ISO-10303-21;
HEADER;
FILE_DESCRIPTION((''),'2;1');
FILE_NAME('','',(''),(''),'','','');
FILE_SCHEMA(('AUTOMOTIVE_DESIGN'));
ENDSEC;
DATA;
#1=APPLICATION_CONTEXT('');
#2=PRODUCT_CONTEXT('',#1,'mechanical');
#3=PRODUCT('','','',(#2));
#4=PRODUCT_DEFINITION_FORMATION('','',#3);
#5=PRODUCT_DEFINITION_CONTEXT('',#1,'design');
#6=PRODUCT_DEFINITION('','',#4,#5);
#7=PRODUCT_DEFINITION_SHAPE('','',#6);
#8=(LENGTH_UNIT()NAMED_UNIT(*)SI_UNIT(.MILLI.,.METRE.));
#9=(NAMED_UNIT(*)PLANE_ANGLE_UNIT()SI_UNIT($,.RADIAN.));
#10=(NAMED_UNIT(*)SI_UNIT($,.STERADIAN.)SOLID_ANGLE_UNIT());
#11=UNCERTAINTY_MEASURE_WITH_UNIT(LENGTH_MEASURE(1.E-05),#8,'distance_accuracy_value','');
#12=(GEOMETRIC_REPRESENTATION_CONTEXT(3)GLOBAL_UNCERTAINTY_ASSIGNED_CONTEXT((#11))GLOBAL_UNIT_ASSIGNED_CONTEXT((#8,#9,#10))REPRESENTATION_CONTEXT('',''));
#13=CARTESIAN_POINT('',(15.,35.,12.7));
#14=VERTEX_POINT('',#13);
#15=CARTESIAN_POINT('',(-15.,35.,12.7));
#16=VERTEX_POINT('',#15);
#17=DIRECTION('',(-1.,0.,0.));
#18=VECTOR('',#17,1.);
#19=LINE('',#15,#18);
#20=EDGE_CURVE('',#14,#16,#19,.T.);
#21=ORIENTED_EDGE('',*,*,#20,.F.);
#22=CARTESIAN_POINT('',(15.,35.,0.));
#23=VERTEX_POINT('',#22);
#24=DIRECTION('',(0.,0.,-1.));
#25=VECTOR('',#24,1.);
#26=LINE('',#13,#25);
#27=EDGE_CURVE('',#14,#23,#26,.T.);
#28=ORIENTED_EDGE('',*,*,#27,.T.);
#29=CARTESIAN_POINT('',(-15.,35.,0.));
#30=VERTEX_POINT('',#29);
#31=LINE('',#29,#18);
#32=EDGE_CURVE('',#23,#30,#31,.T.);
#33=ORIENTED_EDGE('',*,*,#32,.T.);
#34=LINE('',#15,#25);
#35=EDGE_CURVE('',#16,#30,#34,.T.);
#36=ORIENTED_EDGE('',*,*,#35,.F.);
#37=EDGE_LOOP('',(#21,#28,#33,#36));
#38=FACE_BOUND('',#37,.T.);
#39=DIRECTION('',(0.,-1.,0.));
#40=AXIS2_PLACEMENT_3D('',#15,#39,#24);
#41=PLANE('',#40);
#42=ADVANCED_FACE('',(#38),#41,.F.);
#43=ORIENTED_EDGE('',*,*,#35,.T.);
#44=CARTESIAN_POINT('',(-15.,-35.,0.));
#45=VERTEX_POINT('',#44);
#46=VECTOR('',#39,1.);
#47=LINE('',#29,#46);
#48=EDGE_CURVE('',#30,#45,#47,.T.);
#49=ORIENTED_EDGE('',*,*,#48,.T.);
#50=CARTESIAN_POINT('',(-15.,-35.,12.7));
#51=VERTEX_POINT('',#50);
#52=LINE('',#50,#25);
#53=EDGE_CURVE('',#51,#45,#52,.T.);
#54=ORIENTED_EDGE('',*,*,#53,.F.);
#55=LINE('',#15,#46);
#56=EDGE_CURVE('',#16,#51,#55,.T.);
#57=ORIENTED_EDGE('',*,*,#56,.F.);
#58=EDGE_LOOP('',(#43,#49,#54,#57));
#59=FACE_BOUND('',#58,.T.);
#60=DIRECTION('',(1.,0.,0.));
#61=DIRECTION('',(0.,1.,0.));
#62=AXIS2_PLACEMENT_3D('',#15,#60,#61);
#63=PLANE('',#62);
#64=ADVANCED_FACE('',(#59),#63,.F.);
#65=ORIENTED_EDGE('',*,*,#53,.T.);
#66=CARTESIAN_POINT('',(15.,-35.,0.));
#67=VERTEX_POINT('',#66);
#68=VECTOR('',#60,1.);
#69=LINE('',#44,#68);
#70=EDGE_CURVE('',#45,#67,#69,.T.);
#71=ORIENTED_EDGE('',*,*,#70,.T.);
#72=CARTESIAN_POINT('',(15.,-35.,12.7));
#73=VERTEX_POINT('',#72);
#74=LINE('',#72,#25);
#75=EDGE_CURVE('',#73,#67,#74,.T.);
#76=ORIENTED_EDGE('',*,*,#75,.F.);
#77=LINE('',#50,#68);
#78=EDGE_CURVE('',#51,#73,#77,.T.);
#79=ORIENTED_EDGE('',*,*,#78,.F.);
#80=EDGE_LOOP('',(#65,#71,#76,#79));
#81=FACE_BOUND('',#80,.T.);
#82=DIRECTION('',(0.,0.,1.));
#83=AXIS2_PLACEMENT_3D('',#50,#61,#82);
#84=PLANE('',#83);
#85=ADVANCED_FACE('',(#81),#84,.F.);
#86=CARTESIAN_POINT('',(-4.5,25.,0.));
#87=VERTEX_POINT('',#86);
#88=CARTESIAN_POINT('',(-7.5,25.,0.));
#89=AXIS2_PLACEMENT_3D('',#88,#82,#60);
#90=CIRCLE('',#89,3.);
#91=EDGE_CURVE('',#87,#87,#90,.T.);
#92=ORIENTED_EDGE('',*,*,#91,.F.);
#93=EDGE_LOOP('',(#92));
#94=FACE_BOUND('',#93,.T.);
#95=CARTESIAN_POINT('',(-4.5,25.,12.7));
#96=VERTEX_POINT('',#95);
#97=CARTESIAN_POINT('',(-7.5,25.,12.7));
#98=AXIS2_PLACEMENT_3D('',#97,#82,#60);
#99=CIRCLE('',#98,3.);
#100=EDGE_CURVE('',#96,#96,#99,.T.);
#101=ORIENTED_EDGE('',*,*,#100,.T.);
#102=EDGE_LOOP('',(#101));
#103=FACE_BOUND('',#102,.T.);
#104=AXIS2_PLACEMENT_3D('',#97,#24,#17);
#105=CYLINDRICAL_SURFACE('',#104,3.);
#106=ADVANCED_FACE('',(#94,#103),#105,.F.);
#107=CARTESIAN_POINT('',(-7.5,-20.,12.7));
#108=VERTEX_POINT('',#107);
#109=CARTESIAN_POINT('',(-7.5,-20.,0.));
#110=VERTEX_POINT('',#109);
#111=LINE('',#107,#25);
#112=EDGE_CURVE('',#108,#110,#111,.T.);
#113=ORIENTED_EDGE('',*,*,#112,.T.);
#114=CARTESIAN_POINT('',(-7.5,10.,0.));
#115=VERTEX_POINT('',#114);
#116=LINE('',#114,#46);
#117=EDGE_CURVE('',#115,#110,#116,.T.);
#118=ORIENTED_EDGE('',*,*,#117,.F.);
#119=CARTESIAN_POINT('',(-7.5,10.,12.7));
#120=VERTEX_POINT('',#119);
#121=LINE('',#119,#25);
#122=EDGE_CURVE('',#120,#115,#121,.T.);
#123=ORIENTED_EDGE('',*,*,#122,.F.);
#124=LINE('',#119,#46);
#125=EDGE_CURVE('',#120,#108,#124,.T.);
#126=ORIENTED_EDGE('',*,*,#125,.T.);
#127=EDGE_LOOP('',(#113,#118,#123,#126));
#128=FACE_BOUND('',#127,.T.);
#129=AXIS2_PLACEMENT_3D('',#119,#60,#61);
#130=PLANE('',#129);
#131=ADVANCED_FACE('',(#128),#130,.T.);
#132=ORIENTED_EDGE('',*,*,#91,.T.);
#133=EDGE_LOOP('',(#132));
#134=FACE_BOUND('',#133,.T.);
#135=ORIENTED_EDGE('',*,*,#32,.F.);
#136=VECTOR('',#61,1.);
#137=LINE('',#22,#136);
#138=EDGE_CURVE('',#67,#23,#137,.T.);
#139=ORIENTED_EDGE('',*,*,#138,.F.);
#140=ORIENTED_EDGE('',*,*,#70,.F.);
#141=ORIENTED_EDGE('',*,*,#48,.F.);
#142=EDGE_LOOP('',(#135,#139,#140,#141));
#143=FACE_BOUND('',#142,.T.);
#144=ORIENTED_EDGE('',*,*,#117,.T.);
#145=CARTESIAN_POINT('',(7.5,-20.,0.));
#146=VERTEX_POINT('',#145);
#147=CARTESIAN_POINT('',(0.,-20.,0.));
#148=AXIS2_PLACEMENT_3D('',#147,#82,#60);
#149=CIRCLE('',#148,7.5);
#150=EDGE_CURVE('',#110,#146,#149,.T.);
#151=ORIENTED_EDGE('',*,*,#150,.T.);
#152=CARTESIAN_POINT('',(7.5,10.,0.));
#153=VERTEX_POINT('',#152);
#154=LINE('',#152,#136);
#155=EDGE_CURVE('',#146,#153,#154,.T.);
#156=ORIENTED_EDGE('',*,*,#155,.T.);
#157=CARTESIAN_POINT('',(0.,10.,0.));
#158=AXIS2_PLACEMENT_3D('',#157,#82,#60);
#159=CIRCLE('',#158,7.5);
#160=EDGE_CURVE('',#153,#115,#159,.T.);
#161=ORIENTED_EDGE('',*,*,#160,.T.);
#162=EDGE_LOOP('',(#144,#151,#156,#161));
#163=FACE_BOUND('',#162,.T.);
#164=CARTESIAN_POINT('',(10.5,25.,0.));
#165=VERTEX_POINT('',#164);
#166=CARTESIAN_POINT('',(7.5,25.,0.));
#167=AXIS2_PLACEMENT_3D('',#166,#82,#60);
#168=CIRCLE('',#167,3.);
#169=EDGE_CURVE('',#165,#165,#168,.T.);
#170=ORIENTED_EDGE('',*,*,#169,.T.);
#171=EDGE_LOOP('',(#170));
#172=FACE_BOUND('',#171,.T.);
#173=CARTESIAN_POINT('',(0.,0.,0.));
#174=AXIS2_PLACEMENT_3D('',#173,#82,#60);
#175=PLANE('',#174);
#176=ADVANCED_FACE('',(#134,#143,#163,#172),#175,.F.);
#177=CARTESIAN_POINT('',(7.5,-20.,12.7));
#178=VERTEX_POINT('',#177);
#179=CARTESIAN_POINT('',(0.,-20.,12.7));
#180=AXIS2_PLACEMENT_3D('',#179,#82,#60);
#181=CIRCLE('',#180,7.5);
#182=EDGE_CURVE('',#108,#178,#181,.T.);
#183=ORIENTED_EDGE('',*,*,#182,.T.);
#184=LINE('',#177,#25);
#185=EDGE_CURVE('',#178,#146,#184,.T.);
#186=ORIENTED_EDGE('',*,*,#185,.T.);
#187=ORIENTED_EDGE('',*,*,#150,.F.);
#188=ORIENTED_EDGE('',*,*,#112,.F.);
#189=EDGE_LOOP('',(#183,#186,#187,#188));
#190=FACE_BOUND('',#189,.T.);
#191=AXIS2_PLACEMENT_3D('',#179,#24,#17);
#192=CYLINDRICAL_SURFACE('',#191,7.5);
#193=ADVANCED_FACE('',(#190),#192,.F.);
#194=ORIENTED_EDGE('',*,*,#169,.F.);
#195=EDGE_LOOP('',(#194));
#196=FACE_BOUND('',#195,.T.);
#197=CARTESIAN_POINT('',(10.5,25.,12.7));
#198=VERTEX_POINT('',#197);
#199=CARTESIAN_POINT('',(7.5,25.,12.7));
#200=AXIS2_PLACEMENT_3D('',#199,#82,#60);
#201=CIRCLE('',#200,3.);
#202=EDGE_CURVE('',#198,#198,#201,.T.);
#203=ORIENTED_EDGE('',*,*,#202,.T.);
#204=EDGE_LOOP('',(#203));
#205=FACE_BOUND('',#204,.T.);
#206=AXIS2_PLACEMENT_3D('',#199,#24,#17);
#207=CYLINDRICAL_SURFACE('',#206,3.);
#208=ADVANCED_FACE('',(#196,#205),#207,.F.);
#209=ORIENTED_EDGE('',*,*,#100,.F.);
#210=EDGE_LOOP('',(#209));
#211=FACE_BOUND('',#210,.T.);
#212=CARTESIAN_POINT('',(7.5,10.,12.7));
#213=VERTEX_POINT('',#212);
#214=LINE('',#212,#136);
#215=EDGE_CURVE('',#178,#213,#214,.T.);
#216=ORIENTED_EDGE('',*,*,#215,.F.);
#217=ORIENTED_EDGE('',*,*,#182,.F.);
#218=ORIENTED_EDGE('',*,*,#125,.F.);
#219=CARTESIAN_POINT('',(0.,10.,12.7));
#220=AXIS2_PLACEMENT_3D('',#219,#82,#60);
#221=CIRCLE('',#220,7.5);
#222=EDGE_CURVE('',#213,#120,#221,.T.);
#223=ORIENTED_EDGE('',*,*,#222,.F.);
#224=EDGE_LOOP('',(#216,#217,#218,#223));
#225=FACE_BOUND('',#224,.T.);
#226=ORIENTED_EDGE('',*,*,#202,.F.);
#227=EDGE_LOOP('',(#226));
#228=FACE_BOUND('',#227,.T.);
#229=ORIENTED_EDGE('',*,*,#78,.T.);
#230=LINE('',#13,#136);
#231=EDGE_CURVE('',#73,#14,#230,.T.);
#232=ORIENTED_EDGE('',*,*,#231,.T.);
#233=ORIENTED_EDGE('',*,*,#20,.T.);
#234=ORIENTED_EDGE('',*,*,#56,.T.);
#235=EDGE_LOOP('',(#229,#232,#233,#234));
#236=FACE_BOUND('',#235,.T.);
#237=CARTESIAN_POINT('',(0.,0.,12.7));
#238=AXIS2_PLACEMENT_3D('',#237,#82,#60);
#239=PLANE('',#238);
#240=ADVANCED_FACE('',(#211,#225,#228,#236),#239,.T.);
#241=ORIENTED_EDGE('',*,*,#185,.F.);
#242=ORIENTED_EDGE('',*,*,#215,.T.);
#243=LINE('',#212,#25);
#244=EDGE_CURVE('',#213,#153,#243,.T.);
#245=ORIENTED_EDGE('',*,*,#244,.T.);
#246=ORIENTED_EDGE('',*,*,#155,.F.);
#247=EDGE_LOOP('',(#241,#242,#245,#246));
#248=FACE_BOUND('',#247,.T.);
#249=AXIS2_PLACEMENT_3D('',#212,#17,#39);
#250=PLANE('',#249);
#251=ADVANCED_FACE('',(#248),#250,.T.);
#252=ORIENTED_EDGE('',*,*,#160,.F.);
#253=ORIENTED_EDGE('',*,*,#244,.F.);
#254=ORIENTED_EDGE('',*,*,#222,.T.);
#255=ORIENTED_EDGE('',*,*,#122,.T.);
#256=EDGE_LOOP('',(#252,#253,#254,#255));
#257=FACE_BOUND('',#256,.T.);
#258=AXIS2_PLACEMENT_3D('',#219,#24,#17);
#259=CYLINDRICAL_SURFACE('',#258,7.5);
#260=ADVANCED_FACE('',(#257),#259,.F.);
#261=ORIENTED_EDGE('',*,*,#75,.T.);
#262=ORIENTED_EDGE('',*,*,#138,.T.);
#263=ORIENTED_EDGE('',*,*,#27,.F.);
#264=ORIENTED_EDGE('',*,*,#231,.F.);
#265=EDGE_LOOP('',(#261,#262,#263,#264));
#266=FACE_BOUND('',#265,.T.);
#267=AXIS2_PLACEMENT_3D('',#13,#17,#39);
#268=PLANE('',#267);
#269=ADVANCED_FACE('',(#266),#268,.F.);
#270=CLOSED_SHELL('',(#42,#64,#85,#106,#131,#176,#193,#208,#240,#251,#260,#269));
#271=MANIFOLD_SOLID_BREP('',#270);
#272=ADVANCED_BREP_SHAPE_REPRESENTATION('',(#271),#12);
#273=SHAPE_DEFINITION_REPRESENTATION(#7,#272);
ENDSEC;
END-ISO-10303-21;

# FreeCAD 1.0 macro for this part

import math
import FreeCAD as App
import Part
import Sketcher
Q = App.Units.Quantity

doc = App.newDocument("Part")
params = doc.addObject("Spreadsheet::Sheet", "Params")
for row, (alias, value) in enumerate([
    ("sketch1_diameter", "6 mm"),
    ("sketch1_radius", "7.5 mm"),
    ("sketch1_width", "30 mm"),
    ("sketch1_height", "70 mm"),
    ("pad1_length", "12.7 mm"),
], start=1):
    params.set(f"A{row}", alias)
    params.set(f"B{row}", "=" + value)
    params.setAlias(f"B{row}", alias)

body = doc.addObject("PartDesign::Body", "Body")

sketch1 = body.newObject("Sketcher::SketchObject", "Sketch")
sketch1.AttachmentSupport = (doc.getObject("XY_Plane"), [""])
sketch1.MapMode = "FlatFace"
sketch1.addGeometry([
    Part.LineSegment(App.Vector(-15, 35, 0), App.Vector(-15, -35, 0)),
    Part.LineSegment(App.Vector(-15, -35, 0), App.Vector(15, -35, 0)),
    Part.LineSegment(App.Vector(15, -35, 0), App.Vector(15, 35, 0)),
    Part.LineSegment(App.Vector(15, 35, 0), App.Vector(-15, 35, 0)),
    Part.ArcOfCircle(Part.Circle(App.Vector(0, 10, 0), App.Vector(0, 0, 1), 7.5), math.radians(0), math.radians(180)),
    Part.LineSegment(App.Vector(7.5, 10, 0), App.Vector(7.5, -20, 0)),
    Part.ArcOfCircle(Part.Circle(App.Vector(0, -20, 0), App.Vector(0, 0, 1), 7.5), math.radians(180), math.radians(360)),
    Part.LineSegment(App.Vector(-7.5, -20, 0), App.Vector(-7.5, 10, 0)),
    Part.Circle(App.Vector(-7.5, 25, 0), App.Vector(0, 0, 1), 3),
    Part.Circle(App.Vector(7.5, 25, 0), App.Vector(0, 0, 1), 3),
], False)
sketch1.addConstraint([
    Sketcher.Constraint("Coincident", 0, 2, 1, 1),
    Sketcher.Constraint("Coincident", 1, 2, 2, 1),
    Sketcher.Constraint("Coincident", 2, 2, 3, 1),
    Sketcher.Constraint("Coincident", 3, 2, 0, 1),
    Sketcher.Constraint("Tangent", 4, 1, 5, 1),
    Sketcher.Constraint("Tangent", 5, 2, 6, 2),
    Sketcher.Constraint("Tangent", 6, 1, 7, 1),
    Sketcher.Constraint("Tangent", 7, 2, 4, 2),
    Sketcher.Constraint("Vertical", 0),
    Sketcher.Constraint("Horizontal", 1),
    Sketcher.Constraint("Vertical", 2),
    Sketcher.Constraint("Horizontal", 3),
    Sketcher.Constraint("Vertical", 5),
    Sketcher.Constraint("Vertical", 7),
    Sketcher.Constraint("Equal", 8, 9),
    Sketcher.Constraint("Symmetric", 0, 2, 2, 2, -1, 1),
    Sketcher.Constraint("Symmetric", 8, 3, 9, 3, -2),
    Sketcher.Constraint("PointOnObject", 4, 3, -2),
    Sketcher.Constraint("Vertical", 9, 3, 4, 1),
    Sketcher.Constraint("Equal", 3, 5),
    Sketcher.Constraint("Diameter", 8, Q("6 mm")),
    Sketcher.Constraint("Radius", 4, Q("7.5 mm")),
    Sketcher.Constraint("DistanceX", 1, 1, 1, 2, Q("30 mm")),
    Sketcher.Constraint("DistanceY", 0, 2, 0, 1, Q("70 mm")),
    Sketcher.Constraint("DistanceY", -1, 1, 4, 3, Q("10 mm")),
    Sketcher.Constraint("DistanceY", -1, 1, 8, 3, Q("25 mm")),
])
sketch1.setExpression("Constraints[20]", "Params.sketch1_diameter")
sketch1.setExpression("Constraints[21]", "Params.sketch1_radius")
sketch1.setExpression("Constraints[22]", "Params.sketch1_width")
sketch1.setExpression("Constraints[23]", "Params.sketch1_height")
pad1 = body.newObject("PartDesign::Pad", "Pad")
pad1.Profile = sketch1
pad1.setExpression("Length", "Params.pad1_length")

doc.recompute()
